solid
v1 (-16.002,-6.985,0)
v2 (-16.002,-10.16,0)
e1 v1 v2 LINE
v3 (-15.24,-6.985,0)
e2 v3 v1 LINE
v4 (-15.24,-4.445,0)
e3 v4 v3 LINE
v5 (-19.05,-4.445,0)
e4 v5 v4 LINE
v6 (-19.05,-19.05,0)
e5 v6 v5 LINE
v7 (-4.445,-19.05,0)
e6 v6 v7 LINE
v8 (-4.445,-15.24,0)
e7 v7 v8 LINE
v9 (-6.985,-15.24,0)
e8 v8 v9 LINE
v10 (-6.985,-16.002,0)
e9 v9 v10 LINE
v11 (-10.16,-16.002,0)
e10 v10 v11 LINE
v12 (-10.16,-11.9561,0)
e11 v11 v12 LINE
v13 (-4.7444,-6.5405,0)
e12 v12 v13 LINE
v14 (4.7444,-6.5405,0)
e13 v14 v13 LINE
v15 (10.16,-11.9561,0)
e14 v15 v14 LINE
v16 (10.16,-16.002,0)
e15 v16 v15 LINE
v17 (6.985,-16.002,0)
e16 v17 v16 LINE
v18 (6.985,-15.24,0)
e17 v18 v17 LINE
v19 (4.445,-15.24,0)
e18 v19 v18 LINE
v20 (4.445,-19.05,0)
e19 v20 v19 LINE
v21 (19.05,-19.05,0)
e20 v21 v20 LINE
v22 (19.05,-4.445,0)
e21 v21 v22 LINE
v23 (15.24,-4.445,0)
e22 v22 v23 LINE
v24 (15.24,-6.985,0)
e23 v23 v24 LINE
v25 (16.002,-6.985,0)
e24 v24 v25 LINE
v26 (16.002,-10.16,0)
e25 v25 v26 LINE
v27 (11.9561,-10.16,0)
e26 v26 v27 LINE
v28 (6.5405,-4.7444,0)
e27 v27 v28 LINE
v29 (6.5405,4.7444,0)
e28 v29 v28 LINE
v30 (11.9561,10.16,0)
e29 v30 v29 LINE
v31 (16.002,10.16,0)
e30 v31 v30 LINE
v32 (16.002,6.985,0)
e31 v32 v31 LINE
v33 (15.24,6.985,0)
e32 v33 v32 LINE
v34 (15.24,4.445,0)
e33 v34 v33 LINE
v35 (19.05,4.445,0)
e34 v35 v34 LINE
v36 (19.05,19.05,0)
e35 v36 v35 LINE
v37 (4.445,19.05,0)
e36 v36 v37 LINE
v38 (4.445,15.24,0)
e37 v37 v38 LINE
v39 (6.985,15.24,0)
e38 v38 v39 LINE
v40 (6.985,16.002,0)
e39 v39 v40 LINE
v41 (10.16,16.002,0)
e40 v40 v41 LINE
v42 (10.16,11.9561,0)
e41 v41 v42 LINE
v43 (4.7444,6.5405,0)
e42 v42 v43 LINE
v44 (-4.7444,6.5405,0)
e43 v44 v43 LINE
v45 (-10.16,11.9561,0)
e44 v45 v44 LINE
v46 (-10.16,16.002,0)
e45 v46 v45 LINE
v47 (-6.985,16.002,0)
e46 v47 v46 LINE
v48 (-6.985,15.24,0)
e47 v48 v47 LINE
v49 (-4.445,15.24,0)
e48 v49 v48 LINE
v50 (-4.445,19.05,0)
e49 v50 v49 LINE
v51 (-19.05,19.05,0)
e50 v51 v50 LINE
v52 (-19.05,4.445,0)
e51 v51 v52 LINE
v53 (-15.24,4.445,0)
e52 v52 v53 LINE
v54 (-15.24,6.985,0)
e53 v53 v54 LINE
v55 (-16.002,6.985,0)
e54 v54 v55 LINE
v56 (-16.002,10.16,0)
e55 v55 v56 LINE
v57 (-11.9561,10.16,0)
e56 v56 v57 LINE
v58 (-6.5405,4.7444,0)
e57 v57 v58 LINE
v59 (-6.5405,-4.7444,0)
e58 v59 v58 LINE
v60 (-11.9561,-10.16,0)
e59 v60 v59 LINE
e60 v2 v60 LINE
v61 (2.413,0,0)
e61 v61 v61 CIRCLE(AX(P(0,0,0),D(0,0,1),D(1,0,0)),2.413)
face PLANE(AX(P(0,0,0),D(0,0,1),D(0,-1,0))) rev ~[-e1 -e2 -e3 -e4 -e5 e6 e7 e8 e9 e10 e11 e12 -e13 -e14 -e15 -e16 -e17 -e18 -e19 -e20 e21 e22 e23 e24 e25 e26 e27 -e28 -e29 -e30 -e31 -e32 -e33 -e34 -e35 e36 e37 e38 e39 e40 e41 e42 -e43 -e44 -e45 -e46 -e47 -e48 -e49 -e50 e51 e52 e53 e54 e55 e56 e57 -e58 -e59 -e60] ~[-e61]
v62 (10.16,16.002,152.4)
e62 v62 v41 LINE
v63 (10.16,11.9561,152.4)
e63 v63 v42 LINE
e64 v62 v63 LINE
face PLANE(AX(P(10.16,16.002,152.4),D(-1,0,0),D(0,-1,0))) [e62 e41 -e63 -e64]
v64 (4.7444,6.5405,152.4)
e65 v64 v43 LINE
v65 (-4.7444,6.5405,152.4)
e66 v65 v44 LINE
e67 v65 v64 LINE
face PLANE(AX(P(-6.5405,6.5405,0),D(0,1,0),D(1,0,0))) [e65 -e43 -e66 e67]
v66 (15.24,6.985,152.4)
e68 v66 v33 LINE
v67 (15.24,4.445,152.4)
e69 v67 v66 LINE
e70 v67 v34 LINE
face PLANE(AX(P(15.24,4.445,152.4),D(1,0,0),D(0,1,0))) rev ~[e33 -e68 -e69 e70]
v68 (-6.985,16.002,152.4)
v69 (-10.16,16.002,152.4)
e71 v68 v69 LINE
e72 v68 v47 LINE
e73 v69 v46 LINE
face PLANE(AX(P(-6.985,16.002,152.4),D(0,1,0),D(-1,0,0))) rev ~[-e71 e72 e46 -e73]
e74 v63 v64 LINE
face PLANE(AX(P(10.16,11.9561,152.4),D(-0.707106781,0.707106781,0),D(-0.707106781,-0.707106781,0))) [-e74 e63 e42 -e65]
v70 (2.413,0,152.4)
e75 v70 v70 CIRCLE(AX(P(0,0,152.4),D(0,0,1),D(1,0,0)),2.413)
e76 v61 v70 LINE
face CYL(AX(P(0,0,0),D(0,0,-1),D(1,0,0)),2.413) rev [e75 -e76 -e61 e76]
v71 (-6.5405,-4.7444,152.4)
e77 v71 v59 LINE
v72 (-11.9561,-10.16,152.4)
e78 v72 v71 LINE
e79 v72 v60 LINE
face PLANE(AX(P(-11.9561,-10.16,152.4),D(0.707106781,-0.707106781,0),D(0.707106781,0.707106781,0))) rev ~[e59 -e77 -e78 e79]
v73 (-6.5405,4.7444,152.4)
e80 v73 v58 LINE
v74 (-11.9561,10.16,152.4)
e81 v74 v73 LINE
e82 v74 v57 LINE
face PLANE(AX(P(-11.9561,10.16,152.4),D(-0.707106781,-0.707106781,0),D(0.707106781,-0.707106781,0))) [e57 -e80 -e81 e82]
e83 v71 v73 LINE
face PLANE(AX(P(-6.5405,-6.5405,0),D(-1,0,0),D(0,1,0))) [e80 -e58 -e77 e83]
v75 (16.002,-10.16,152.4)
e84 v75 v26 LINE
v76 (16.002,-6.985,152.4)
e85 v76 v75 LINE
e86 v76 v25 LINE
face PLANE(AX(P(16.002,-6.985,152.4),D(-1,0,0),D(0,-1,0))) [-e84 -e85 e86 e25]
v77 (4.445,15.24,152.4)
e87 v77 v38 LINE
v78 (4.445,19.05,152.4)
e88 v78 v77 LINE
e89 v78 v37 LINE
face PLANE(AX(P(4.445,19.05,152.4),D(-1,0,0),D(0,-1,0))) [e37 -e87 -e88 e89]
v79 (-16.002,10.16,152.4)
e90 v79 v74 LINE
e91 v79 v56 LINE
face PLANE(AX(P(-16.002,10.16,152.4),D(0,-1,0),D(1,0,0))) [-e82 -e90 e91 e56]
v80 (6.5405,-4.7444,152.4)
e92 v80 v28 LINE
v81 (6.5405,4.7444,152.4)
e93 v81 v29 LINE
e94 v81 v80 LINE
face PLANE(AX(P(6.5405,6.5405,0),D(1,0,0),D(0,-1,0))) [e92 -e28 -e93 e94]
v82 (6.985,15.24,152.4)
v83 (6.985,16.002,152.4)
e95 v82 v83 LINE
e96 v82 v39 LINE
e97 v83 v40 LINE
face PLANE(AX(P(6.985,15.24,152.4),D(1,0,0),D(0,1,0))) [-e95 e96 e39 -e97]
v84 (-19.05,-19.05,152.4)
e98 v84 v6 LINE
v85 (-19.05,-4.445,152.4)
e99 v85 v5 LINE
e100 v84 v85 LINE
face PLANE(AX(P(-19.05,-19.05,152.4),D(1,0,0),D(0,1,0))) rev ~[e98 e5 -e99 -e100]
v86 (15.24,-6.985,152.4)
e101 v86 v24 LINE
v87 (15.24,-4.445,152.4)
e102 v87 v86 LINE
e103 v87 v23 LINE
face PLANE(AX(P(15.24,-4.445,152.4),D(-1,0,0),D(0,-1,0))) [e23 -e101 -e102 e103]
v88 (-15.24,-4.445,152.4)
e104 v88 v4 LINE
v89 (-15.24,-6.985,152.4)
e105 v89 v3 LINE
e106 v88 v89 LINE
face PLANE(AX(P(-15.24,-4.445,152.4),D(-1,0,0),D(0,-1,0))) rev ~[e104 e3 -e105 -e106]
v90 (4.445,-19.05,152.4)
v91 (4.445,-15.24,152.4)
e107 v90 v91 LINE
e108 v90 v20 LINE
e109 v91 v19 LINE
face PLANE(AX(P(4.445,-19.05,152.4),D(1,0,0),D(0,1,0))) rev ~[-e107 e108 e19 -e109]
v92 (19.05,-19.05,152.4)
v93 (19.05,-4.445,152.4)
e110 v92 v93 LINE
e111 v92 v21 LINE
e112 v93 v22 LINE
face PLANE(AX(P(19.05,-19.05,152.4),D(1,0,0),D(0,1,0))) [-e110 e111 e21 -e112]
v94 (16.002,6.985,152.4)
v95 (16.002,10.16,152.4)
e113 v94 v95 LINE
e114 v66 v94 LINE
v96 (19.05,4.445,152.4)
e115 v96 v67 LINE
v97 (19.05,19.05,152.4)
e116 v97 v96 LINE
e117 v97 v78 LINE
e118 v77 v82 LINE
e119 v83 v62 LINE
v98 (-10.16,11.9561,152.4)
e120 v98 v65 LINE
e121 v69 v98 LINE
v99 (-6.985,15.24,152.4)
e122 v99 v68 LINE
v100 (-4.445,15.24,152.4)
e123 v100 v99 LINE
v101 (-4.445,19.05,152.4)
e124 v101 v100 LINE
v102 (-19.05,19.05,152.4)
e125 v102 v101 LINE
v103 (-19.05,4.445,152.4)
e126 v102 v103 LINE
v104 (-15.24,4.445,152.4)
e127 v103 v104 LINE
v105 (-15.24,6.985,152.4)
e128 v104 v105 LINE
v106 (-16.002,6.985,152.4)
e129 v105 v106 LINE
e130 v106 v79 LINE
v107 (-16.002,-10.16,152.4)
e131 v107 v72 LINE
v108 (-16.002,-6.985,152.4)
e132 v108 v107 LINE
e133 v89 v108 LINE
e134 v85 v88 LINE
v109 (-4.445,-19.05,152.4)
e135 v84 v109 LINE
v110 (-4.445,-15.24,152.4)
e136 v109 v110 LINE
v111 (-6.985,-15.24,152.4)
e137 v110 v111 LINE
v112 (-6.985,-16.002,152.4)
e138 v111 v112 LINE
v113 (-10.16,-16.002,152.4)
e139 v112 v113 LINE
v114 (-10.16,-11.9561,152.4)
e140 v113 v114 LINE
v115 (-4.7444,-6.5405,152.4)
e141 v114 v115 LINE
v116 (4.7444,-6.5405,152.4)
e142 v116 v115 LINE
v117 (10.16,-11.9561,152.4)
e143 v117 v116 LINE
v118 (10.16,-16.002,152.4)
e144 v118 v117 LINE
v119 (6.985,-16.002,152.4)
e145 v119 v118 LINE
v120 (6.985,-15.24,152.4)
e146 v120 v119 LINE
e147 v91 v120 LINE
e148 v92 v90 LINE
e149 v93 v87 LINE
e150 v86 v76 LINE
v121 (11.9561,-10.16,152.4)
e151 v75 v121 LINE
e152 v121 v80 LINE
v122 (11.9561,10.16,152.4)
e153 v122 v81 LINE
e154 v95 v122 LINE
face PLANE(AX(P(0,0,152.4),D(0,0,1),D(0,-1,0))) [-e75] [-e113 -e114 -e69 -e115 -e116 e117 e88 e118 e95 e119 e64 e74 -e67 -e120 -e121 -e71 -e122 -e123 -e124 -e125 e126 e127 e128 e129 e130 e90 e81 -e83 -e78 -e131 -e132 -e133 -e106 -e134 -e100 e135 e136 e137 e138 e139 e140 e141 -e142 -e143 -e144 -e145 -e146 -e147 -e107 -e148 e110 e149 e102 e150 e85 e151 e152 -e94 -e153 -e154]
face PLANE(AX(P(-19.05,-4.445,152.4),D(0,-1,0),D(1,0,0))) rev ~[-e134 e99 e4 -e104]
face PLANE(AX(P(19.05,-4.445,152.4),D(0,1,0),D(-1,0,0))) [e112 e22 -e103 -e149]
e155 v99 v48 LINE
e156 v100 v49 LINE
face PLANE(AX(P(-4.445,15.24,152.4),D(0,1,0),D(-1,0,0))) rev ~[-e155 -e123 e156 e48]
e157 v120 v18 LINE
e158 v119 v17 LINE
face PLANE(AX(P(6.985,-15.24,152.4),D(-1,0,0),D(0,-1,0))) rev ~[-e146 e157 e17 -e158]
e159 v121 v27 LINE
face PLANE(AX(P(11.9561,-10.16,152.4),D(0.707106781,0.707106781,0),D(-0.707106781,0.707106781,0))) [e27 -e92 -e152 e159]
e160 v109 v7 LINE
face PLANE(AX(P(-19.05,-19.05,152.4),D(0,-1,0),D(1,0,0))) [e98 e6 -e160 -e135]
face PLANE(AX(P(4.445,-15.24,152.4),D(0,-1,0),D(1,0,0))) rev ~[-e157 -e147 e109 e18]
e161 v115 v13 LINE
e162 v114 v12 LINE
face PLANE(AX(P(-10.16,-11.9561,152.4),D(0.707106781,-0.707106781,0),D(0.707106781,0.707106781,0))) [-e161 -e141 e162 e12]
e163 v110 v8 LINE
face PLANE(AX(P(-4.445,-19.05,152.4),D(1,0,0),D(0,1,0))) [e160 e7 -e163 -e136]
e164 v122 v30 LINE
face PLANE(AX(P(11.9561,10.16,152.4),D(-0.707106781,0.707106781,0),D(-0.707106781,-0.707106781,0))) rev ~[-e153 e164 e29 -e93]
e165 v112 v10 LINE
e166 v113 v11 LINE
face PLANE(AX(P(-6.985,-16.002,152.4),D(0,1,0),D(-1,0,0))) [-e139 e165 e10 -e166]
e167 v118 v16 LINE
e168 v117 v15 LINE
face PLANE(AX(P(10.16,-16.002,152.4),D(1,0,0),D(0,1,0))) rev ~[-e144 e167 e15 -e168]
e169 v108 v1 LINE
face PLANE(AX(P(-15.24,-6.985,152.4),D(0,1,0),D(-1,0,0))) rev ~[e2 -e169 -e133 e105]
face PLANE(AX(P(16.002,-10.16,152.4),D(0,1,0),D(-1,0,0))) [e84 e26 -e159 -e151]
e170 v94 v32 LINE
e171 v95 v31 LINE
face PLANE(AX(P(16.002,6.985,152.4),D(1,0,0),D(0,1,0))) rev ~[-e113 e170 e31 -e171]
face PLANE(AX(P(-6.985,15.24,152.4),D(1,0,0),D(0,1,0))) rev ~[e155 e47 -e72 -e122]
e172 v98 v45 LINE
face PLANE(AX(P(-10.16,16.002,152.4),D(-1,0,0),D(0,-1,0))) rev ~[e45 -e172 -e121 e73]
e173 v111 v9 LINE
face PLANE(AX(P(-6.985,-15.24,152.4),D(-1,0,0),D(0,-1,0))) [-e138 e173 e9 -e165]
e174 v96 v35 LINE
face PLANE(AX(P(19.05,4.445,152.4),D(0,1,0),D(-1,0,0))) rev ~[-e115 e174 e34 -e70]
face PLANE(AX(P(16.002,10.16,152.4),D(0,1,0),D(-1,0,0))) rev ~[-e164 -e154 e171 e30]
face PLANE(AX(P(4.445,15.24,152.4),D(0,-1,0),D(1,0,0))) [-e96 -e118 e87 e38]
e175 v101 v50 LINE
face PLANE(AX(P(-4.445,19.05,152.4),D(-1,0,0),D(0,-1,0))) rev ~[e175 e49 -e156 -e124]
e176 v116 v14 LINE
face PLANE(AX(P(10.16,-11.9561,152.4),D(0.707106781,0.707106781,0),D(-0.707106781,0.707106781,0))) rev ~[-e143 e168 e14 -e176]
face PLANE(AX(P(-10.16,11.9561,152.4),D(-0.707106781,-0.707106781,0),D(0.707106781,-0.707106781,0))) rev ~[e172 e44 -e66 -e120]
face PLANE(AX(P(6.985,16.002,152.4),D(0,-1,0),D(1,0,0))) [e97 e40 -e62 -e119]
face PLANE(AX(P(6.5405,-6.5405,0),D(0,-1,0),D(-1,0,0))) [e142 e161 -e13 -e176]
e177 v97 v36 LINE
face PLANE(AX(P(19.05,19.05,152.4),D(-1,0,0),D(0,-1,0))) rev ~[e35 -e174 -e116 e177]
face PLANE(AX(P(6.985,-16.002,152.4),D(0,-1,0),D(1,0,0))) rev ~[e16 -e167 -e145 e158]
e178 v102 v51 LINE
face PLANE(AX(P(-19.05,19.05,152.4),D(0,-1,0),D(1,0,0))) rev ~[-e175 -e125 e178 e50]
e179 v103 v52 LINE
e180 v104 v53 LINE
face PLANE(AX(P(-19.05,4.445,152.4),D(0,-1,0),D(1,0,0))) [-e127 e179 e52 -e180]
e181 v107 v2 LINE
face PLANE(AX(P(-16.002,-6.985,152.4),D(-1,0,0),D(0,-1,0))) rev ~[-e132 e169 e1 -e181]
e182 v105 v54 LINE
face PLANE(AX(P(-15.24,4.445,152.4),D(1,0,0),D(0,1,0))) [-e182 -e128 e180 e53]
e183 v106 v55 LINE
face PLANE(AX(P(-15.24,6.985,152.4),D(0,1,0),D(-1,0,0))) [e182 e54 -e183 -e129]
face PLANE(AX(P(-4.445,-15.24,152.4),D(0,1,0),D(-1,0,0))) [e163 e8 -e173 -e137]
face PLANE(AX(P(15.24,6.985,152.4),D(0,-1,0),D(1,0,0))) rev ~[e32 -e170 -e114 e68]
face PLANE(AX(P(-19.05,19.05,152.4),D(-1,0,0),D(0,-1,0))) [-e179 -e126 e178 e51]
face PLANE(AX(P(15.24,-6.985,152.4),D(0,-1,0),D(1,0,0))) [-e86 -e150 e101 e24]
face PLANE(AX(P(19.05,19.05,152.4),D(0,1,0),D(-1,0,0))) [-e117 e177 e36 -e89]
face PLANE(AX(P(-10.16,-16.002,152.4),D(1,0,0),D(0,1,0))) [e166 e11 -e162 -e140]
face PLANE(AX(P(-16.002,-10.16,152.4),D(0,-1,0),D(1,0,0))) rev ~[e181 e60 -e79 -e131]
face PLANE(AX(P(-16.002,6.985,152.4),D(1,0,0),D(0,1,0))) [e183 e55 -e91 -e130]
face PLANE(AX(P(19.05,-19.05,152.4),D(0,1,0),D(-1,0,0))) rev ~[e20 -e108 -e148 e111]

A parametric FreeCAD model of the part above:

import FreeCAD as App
import Part
import Sketcher

V = App.Vector
Q = App.Units.Quantity

doc = App.newDocument("Part")
body = doc.addObject("PartDesign::Body", "Body")

# Sketch on XY plane
sketch1 = body.newObject("Sketcher::SketchObject", "Sketch")
sketch1.AttachmentSupport = (doc.getObject("XY_Plane"), [""])
sketch1.MapMode = "FlatFace"
sketch1.addGeometry([
    Part.LineSegment(V(-6.5, -6.5, 0), V(6.5, -6.5, 0)),  # 0
    Part.LineSegment(V(6.5, -6.5, 0), V(6.5, 6.5, 0)),  # 1
    Part.LineSegment(V(6.5, 6.5, 0), V(-6.5, 6.5, 0)),  # 2
    Part.LineSegment(V(-6.5, 6.5, 0), V(-6.5, -6.5, 0)),  # 3
    Part.Circle(V(0, 0, 0), V(0, 0, 1), 2.4),  # 4
], False)
sketch1.addConstraint([
    Sketcher.Constraint("Coincident", 0, 2, 1, 1),
    Sketcher.Constraint("Coincident", 1, 2, 2, 1),
    Sketcher.Constraint("Coincident", 2, 2, 3, 1),
    Sketcher.Constraint("Coincident", 3, 2, 0, 1),
    Sketcher.Constraint("Horizontal", 0),
    Sketcher.Constraint("Vertical", 1),
    Sketcher.Constraint("Horizontal", 2),
    Sketcher.Constraint("Vertical", 3),
    Sketcher.Constraint("Coincident", 4, 3, -1, 1),
    Sketcher.Constraint("Symmetric", 0, 2, 2, 2, -1, 1),
    Sketcher.Constraint("Equal", 2, 1),
    Sketcher.Constraint("Diameter", 4, Q("0.19 in")),
    Sketcher.Constraint("DistanceX", 0, 1, 0, 2, Q("0.515 in")),
])
pad1 = body.newObject("PartDesign::Pad", "Pad")
pad1.Profile = sketch1
pad1.Length = Q("6 in")

# Sketch on XY plane
sketch2 = body.newObject("Sketcher::SketchObject", "Sketch001")
sketch2.AttachmentSupport = (doc.getObject("XY_Plane"), [""])
sketch2.MapMode = "FlatFace"
sketch2.AttachmentOffset = App.Placement(V(0, 0, 6 * 25.4), App.Rotation())
sketch2.addGeometry([
    Part.LineSegment(V(6.5, 6.5, 0), V(6.5, 4.7, 0)),  # 0
    Part.LineSegment(V(6.5, 4.7, 0), V(12, 10.2, 0)),  # 1
    Part.LineSegment(V(12, 10.2, 0), V(16, 10.2, 0)),  # 2
    Part.LineSegment(V(16, 10.2, 0), V(16, 7, 0)),  # 3
    Part.LineSegment(V(16, 7, 0), V(15.2, 7, 0)),  # 4
    Part.LineSegment(V(15.2, 7, 0), V(15.2, 4.4, 0)),  # 5
    Part.LineSegment(V(15.2, 4.4, 0), V(19.1, 4.4, 0)),  # 6
    Part.LineSegment(V(19.1, 4.4, 0), V(19.1, 19.1, 0)),  # 7
    Part.LineSegment(V(19.1, 19.1, 0), V(4.4, 19.1, 0)),  # 8
    Part.LineSegment(V(4.4, 19.1, 0), V(4.4, 15.2, 0)),  # 9
    Part.LineSegment(V(4.4, 15.2, 0), V(7, 15.2, 0)),  # 10
    Part.LineSegment(V(7, 15.2, 0), V(7, 16, 0)),  # 11
    Part.LineSegment(V(7, 16, 0), V(10.2, 16, 0)),  # 12
    Part.LineSegment(V(10.2, 16, 0), V(10.2, 12, 0)),  # 13
    Part.LineSegment(V(10.2, 12, 0), V(4.7, 6.5, 0)),  # 14
    Part.LineSegment(V(4.7, 6.5, 0), V(6.5, 6.5, 0)),  # 15
], False)
sketch2.addConstraint([
    Sketcher.Constraint("Coincident", 0, 2, 1, 1),
    Sketcher.Constraint("Coincident", 1, 2, 2, 1),
    Sketcher.Constraint("Coincident", 2, 2, 3, 1),
    Sketcher.Constraint("Coincident", 3, 2, 4, 1),
    Sketcher.Constraint("Coincident", 4, 2, 5, 1),
    Sketcher.Constraint("Coincident", 5, 2, 6, 1),
    Sketcher.Constraint("Coincident", 6, 2, 7, 1),
    Sketcher.Constraint("Coincident", 7, 2, 8, 1),
    Sketcher.Constraint("Coincident", 8, 2, 9, 1),
    Sketcher.Constraint("Coincident", 9, 2, 10, 1),
    Sketcher.Constraint("Coincident", 10, 2, 11, 1),
    Sketcher.Constraint("Coincident", 11, 2, 12, 1),
    Sketcher.Constraint("Coincident", 12, 2, 13, 1),
    Sketcher.Constraint("Coincident", 13, 2, 14, 1),
    Sketcher.Constraint("Coincident", 14, 2, 15, 1),
    Sketcher.Constraint("Coincident", 15, 2, 0, 1),
    Sketcher.Constraint("Vertical", 0),
    Sketcher.Constraint("Horizontal", 2),
    Sketcher.Constraint("Vertical", 3),
    Sketcher.Constraint("Horizontal", 4),
    Sketcher.Constraint("Vertical", 5),
    Sketcher.Constraint("Horizontal", 6),
    Sketcher.Constraint("Vertical", 7),
    Sketcher.Constraint("Horizontal", 8),
    Sketcher.Constraint("Vertical", 9),
    Sketcher.Constraint("Horizontal", 10),
    Sketcher.Constraint("Vertical", 11),
    Sketcher.Constraint("Horizontal", 12),
    Sketcher.Constraint("Vertical", 13),
    Sketcher.Constraint("Horizontal", 15),
    Sketcher.Constraint("Parallel", 1, 14),
    Sketcher.Constraint("Equal", 15, 0),
    Sketcher.Constraint("Equal", 12, 3),
    Sketcher.Constraint("Equal", 10, 5),
    Sketcher.Constraint("Equal", 8, 7),
    Sketcher.Constraint("Equal", 6, 9),
    Sketcher.Constraint("Equal", 4, 11),
    Sketcher.Constraint("Equal", 2, 13),
    Sketcher.Constraint("Angle", 1, Q("45 deg")),
    Sketcher.Constraint("DistanceX", 6, 1, 6, 2, Q("0.15 in")),
    Sketcher.Constraint("DistanceX", 8, 2, 8, 1, Q("0.575 in")),
    Sketcher.Constraint("DistanceX", 12, 1, 12, 2, Q("0.125 in")),
    Sketcher.Constraint("DistanceX", -1, 1, 6, 2, Q("0.75 in")),
    Sketcher.Constraint("DistanceY", -1, 1, 7, 2, Q("0.75 in")),
    Sketcher.Constraint("DistanceX", 3, 2, 6, 2, Q("0.12 in")),
    Sketcher.Constraint("DistanceY", 2, 2, 7, 2, Q("0.35 in")),
    Sketcher.Constraint("DistanceX", 2, 1, 2, 2, Q("0.1592913 in")),
    Sketcher.Constraint("DistanceX", -1, 1, 0, 2, Q("0.2575 in")),
])
pad2 = body.newObject("PartDesign::Pad", "Pad001")
pad2.Profile = sketch2
pad2.Length = Q("6 in")
pad2.Reversed = True
doc.recompute()

polarpattern = body.newObject("PartDesign::PolarPattern", "PolarPattern")
polarpattern.Originals = [pad2]
polarpattern.Axis = (doc.getObject("Z_Axis"), [""])
polarpattern.Angle = 360
polarpattern.Occurrences = 4
body.Tip = polarpattern

doc.recompute()
